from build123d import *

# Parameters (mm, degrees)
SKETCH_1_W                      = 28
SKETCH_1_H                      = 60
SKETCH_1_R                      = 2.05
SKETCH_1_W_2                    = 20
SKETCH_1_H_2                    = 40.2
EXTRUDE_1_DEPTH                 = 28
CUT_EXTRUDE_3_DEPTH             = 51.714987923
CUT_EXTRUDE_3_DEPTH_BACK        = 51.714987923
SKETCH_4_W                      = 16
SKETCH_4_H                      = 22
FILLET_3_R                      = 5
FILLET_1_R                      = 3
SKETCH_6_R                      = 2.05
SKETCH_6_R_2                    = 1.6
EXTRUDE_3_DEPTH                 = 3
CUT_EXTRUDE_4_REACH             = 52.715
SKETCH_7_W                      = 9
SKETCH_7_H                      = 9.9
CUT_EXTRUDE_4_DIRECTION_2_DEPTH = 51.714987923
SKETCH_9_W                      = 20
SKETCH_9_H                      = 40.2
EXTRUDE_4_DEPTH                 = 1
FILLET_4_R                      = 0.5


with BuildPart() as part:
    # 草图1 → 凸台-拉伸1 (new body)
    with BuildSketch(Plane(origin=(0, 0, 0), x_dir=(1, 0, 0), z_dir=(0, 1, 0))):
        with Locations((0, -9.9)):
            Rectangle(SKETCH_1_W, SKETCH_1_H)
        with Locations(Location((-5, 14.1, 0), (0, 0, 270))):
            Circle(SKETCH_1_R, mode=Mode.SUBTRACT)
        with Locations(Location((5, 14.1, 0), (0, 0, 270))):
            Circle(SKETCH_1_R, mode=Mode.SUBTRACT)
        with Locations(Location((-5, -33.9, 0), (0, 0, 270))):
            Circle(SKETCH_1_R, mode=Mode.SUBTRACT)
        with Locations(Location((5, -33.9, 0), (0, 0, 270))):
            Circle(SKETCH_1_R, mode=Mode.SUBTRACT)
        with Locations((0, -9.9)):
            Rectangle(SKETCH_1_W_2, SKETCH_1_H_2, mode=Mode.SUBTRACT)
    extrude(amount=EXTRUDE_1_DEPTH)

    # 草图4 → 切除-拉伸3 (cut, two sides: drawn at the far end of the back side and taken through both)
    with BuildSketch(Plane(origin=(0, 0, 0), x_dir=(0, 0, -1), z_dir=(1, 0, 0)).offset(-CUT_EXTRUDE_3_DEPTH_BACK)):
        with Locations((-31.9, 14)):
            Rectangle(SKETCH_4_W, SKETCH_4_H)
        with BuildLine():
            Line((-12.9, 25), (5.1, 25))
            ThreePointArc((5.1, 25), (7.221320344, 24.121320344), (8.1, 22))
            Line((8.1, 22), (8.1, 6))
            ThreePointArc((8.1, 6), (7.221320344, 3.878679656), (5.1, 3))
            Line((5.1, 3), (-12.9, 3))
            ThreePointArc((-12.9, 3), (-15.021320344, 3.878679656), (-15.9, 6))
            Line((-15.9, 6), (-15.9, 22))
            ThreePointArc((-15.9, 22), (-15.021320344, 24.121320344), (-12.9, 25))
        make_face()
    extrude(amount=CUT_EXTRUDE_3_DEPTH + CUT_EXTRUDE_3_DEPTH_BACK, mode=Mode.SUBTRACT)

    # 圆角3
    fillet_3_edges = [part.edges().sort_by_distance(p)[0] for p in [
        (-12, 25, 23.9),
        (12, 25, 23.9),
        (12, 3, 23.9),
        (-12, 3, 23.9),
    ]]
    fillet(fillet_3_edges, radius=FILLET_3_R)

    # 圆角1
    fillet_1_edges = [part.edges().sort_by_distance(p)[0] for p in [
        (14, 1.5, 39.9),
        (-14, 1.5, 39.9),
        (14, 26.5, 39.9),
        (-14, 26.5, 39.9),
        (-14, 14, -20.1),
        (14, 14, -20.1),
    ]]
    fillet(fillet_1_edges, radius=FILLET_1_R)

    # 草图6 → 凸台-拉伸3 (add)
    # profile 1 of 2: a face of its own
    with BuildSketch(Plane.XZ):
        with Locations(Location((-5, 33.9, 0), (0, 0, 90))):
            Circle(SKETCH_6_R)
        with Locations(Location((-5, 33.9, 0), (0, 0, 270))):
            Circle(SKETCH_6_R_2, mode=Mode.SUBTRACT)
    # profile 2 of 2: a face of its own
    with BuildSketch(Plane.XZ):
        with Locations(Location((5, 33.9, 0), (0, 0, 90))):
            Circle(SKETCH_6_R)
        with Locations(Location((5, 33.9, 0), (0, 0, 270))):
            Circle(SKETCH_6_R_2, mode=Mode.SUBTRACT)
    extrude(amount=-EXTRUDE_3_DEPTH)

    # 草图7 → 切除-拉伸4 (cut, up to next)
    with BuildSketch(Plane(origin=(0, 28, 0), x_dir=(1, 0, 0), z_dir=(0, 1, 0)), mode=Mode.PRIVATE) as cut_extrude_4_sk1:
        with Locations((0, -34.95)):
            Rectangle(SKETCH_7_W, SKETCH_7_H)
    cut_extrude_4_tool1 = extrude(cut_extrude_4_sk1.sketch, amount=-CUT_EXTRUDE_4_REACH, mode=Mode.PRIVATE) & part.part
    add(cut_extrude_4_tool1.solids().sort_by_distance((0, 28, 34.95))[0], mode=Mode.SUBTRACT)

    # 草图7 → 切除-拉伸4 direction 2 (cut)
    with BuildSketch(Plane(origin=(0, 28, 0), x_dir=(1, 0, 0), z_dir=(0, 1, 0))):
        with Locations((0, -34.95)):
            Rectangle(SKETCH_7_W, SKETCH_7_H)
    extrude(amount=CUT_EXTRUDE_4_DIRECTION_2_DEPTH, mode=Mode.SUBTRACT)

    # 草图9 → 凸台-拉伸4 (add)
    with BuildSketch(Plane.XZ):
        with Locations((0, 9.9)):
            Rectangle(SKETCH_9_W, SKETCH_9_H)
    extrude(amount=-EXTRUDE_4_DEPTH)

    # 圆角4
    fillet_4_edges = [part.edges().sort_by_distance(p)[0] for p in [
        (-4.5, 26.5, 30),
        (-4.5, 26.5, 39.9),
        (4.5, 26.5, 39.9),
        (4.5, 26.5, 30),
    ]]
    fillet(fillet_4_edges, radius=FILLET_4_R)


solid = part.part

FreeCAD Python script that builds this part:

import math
import FreeCAD as App
import Part
import Sketcher

V = App.Vector
Q = App.Units.Quantity


def edges_at(feature, points):
    """Names of the edges that pass closest to the given points."""
    edges = feature.Shape.Edges
    near = lambda p: min(range(len(edges)), key=lambda i: edges[i].distToShape(Part.Vertex(*p))[0])
    return sorted({f"Edge{near(p) + 1}" for p in points})


def add_polygon(sketch, points):
    """Adds a closed chain of lines whose ends are joined by coincident constraints."""
    first, n = sketch.GeometryCount, len(points)
    for a, b in zip(points, points[1:] + points[:1]):
        sketch.addGeometry(Part.LineSegment(App.Vector(*a, 0), App.Vector(*b, 0)), False)
    for i in range(n):
        sketch.addConstraint(Sketcher.Constraint("Coincident", first + i, 2, first + (i + 1) % n, 1))

doc = App.newDocument("Part")
body = doc.addObject("PartDesign::Body", "Body")

# Sketch on XZ plane
sketch1 = body.newObject("Sketcher::SketchObject", "Sketch")
sketch1.AttachmentSupport = (doc.getObject("XZ_Plane"), [""])
sketch1.MapMode = "FlatFace"
add_polygon(sketch1, [(-14, -20.1), (-14, 39.9), (14, 39.9), (14, -20.1)])  # lines 0-3
sketch1.addGeometry(Part.Circle(V(-5, 33.9, 0), V(0, 0, 1), 2), False)  # 4
sketch1.addGeometry(Part.Circle(V(5, 33.9, 0), V(0, 0, 1), 2), False)  # 5
sketch1.addGeometry(Part.Circle(V(-5, -14.1, 0), V(0, 0, 1), 2), False)  # 6
add_polygon(sketch1, [(10, 30), (-10, 30), (-10, -10.2), (10, -10.2)])  # lines 7-10
sketch1.addGeometry(Part.Circle(V(5, -14.1, 0), V(0, 0, 1), 2), False)  # 11
sketch1.addConstraint(Sketcher.Constraint("Vertical", 0))
sketch1.addConstraint(Sketcher.Constraint("Horizontal", 1))
sketch1.addConstraint(Sketcher.Constraint("Vertical", 2))
sketch1.addConstraint(Sketcher.Constraint("Horizontal", 3))
sketch1.addConstraint(Sketcher.Constraint("Horizontal", 7))
sketch1.addConstraint(Sketcher.Constraint("Vertical", 8))
sketch1.addConstraint(Sketcher.Constraint("Horizontal", 9))
sketch1.addConstraint(Sketcher.Constraint("Vertical", 10))
sketch1.addConstraint(Sketcher.Constraint("Equal", 4, 5))
sketch1.addConstraint(Sketcher.Constraint("Equal", 5, 6))
sketch1.addConstraint(Sketcher.Constraint("Equal", 6, 11))
sketch1.addConstraint(Sketcher.Constraint("Symmetric", 4, 3, 5, 3, -2))
sketch1.addConstraint(Sketcher.Constraint("Symmetric", 6, 3, 11, 3, -2))
sketch1.addConstraint(Sketcher.Constraint("Vertical", 4, 3, 6, 3))
sketch1.addConstraint(Sketcher.Constraint("Diameter", 4, Q("4.1 mm")))
sketch1.addConstraint(Sketcher.Constraint("DistanceX", 1, 1, 1, 2, Q("28 mm")))
sketch1.addConstraint(Sketcher.Constraint("DistanceX", 7, 2, 7, 1, Q("20 mm")))
sketch1.addConstraint(Sketcher.Constraint("DistanceY", 0, 1, 0, 2, Q("60 mm")))
sketch1.addConstraint(Sketcher.Constraint("DistanceY", 8, 2, 8, 1, Q("40.2 mm")))
sketch1.addConstraint(Sketcher.Constraint("DistanceX", 4, 3, -1, 1, Q("5 mm")))
sketch1.addConstraint(Sketcher.Constraint("DistanceX", 0, 2, -1, 1, Q("14 mm")))
sketch1.addConstraint(Sketcher.Constraint("DistanceX", 7, 2, -1, 1, Q("10 mm")))
sketch1.addConstraint(Sketcher.Constraint("DistanceY", -1, 1, 7, 2, Q("30 mm")))
sketch1.addConstraint(Sketcher.Constraint("DistanceY", 6, 3, 4, 3, Q("48 mm")))
sketch1.addConstraint(Sketcher.Constraint("DistanceY", 4, 3, 0, 2, Q("6 mm")))
sketch1.addConstraint(Sketcher.Constraint("DistanceY", -1, 1, 4, 3, Q("33.9 mm")))
pad1 = body.newObject("PartDesign::Pad", "Pad")
pad1.Profile = sketch1
pad1.Length = 28
pad1.Reversed = True

# Sketch on YZ plane
sketch2 = body.newObject("Sketcher::SketchObject", "Sketch001")
sketch2.AttachmentSupport = (doc.getObject("YZ_Plane"), [""])
sketch2.MapMode = "FlatFace"
add_polygon(sketch2, [(25, 39.9), (3, 39.9), (3, 23.9), (25, 23.9)])  # lines 0-3
sketch2.addGeometry(Part.LineSegment(V(25, -5.1, 0), V(25, 12.9, 0)), False)  # 4
sketch2.addGeometry(Part.ArcOfCircle(Part.Circle(V(22, 12.9, 0), V(0, 0, 1), 3), math.radians(0), math.radians(90)), False)  # 5
sketch2.addGeometry(Part.LineSegment(V(22, 15.9, 0), V(6, 15.9, 0)), False)  # 6
sketch2.addGeometry(Part.ArcOfCircle(Part.Circle(V(6, 12.9, 0), V(0, 0, 1), 3), math.radians(90), math.radians(180)), False)  # 7
sketch2.addGeometry(Part.LineSegment(V(3, 12.9, 0), V(3, -5.1, 0)), False)  # 8
sketch2.addGeometry(Part.ArcOfCircle(Part.Circle(V(6, -5.1, 0), V(0, 0, 1), 3), math.radians(180), math.radians(270)), False)  # 9
sketch2.addGeometry(Part.LineSegment(V(6, -8.1, 0), V(22, -8.1, 0)), False)  # 10
sketch2.addGeometry(Part.ArcOfCircle(Part.Circle(V(22, -5.1, 0), V(0, 0, 1), 3), math.radians(-90), math.radians(0)), False)  # 11
sketch2.addConstraint(Sketcher.Constraint("Tangent", 4, 2, 5, 1))
sketch2.addConstraint(Sketcher.Constraint("Tangent", 5, 2, 6, 1))
sketch2.addConstraint(Sketcher.Constraint("Tangent", 6, 2, 7, 1))
sketch2.addConstraint(Sketcher.Constraint("Tangent", 7, 2, 8, 1))
sketch2.addConstraint(Sketcher.Constraint("Tangent", 8, 2, 9, 1))
sketch2.addConstraint(Sketcher.Constraint("Tangent", 9, 2, 10, 1))
sketch2.addConstraint(Sketcher.Constraint("Tangent", 10, 2, 11, 1))
sketch2.addConstraint(Sketcher.Constraint("Tangent", 11, 2, 4, 1))
sketch2.addConstraint(Sketcher.Constraint("Horizontal", 0))
sketch2.addConstraint(Sketcher.Constraint("Vertical", 1))
sketch2.addConstraint(Sketcher.Constraint("Horizontal", 2))
sketch2.addConstraint(Sketcher.Constraint("Vertical", 3))
sketch2.addConstraint(Sketcher.Constraint("Vertical", 4))
sketch2.addConstraint(Sketcher.Constraint("Horizontal", 6))
sketch2.addConstraint(Sketcher.Constraint("Vertical", 8))
sketch2.addConstraint(Sketcher.Constraint("Horizontal", 10))
sketch2.addConstraint(Sketcher.Constraint("Equal", 5, 7))
sketch2.addConstraint(Sketcher.Constraint("Equal", 7, 9))
sketch2.addConstraint(Sketcher.Constraint("Equal", 9, 11))
sketch2.addConstraint(Sketcher.Constraint("Vertical", 3, 2, 4, 2))
sketch2.addConstraint(Sketcher.Constraint("Vertical", 1, 2, 7, 2))
sketch2.addConstraint(Sketcher.Constraint("Equal", 10, 1))
sketch2.addConstraint(Sketcher.Constraint("Radius", 5, Q("3 mm")))
sketch2.addConstraint(Sketcher.Constraint("DistanceX", 0, 2, 0, 1, Q("22 mm")))
sketch2.addConstraint(Sketcher.Constraint("DistanceY", 4, 1, 4, 2, Q("18 mm")))
sketch2.addConstraint(Sketcher.Constraint("DistanceX", -1, 1, 5, 3, Q("22 mm")))
sketch2.addConstraint(Sketcher.Constraint("DistanceY", 7, 3, 0, 2, Q("27 mm")))
sketch2.addConstraint(Sketcher.Constraint("DistanceY", -1, 1, 5, 3, Q("12.9 mm")))
pocket1 = body.newObject("PartDesign::Pocket", "Pocket")
pocket1.Profile = sketch2
pocket1.Type = "ThroughAll"
pocket1.Midplane = True
doc.recompute()

fillet = body.newObject("PartDesign::Fillet", "Fillet")
fillet.Base = (pocket1, edges_at(pocket1, [
    (-12, 25, 23.9),
    (12, 25, 23.9),
    (12, 3, 23.9),
    (-12, 3, 23.9),
]))
fillet.Radius = 5
doc.recompute()

fillet2 = body.newObject("PartDesign::Fillet", "Fillet001")
fillet2.Base = (fillet, edges_at(fillet, [
    (14, 1.5, 39.9),
    (-14, 1.5, 39.9),
    (14, 26.5, 39.9),
    (-14, 26.5, 39.9),
    (-14, 14, -20.1),
    (14, 14, -20.1),
]))
fillet2.Radius = 3

# Sketch on XZ plane
sketch3 = body.newObject("Sketcher::SketchObject", "Sketch002")
sketch3.AttachmentSupport = (doc.getObject("XZ_Plane"), [""])
sketch3.MapMode = "FlatFace"
sketch3.addGeometry(Part.Circle(V(-5, 33.9, 0), V(0, 0, 1), 2), False)
sketch3.addGeometry(Part.Circle(V(-5, 33.9, 0), V(0, 0, 1), 1.6), False)
sketch3.addGeometry(Part.Circle(V(5, 33.9, 0), V(0, 0, 1), 2), False)
sketch3.addGeometry(Part.Circle(V(5, 33.9, 0), V(0, 0, 1), 1.6), False)
sketch3.addConstraint(Sketcher.Constraint("Coincident", 1, 3, 0, 3))
sketch3.addConstraint(Sketcher.Constraint("Coincident", 3, 3, 2, 3))
sketch3.addConstraint(Sketcher.Constraint("Equal", 0, 2))
sketch3.addConstraint(Sketcher.Constraint("Equal", 1, 3))
sketch3.addConstraint(Sketcher.Constraint("Symmetric", 0, 3, 2, 3, -2))
sketch3.addConstraint(Sketcher.Constraint("Diameter", 0, Q("4.1 mm")))
sketch3.addConstraint(Sketcher.Constraint("Diameter", 1, Q("3.2 mm")))
sketch3.addConstraint(Sketcher.Constraint("DistanceX", 0, 3, -1, 1, Q("5 mm")))
sketch3.addConstraint(Sketcher.Constraint("DistanceY", -1, 1, 0, 3, Q("33.9 mm")))
pad2 = body.newObject("PartDesign::Pad", "Pad001")
pad2.Profile = sketch3
pad2.Length = 3
pad2.Reversed = True

# Sketch on XZ plane
sketch4 = body.newObject("Sketcher::SketchObject", "Sketch003")
sketch4.AttachmentSupport = (doc.getObject("XZ_Plane"), [""])
sketch4.MapMode = "FlatFace"
sketch4.AttachmentOffset = App.Placement(V(0, 0, -28), App.Rotation())
add_polygon(sketch4, [(-4, 30), (-4, 40), (4, 40), (4, 30)])  # lines 0-3
sketch4.addConstraint(Sketcher.Constraint("Vertical", 0))
sketch4.addConstraint(Sketcher.Constraint("Horizontal", 1))
sketch4.addConstraint(Sketcher.Constraint("Vertical", 2))
sketch4.addConstraint(Sketcher.Constraint("Horizontal", 3))
sketch4.addConstraint(Sketcher.Constraint("DistanceX", 1, 1, 1, 2, Q("9 mm")))
sketch4.addConstraint(Sketcher.Constraint("DistanceY", 0, 1, 0, 2, Q("9.9 mm")))
sketch4.addConstraint(Sketcher.Constraint("DistanceY", -1, 1, 2, 2, Q("30 mm")))
sketch4.addConstraint(Sketcher.Constraint("DistanceX", 0, 2, -1, 1, Q("4.5 mm")))
pocket2 = body.newObject("PartDesign::Pocket", "Pocket001")
pocket2.Profile = sketch4
pocket2.Type = "UpToFirst"
pocket2.Reversed = True

# Sketch on XZ plane
sketch5 = body.newObject("Sketcher::SketchObject", "Sketch004")
sketch5.AttachmentSupport = (doc.getObject("XZ_Plane"), [""])
sketch5.MapMode = "FlatFace"
sketch5.AttachmentOffset = App.Placement(V(0, 0, -28), App.Rotation())
add_polygon(sketch5, [(-4, 30), (-4, 40), (4, 40), (4, 30)])  # lines 0-3
sketch5.addConstraint(Sketcher.Constraint("Vertical", 0))
sketch5.addConstraint(Sketcher.Constraint("Horizontal", 1))
sketch5.addConstraint(Sketcher.Constraint("Vertical", 2))
sketch5.addConstraint(Sketcher.Constraint("Horizontal", 3))
sketch5.addConstraint(Sketcher.Constraint("DistanceX", 1, 1, 1, 2, Q("9 mm")))
sketch5.addConstraint(Sketcher.Constraint("DistanceY", 0, 1, 0, 2, Q("9.9 mm")))
sketch5.addConstraint(Sketcher.Constraint("DistanceY", -1, 1, 2, 2, Q("30 mm")))
sketch5.addConstraint(Sketcher.Constraint("DistanceX", 0, 2, -1, 1, Q("4.5 mm")))
pocket3 = body.newObject("PartDesign::Pocket", "Pocket002")
pocket3.Profile = sketch5
pocket3.Length = 51.714988

# Sketch on XZ plane
sketch6 = body.newObject("Sketcher::SketchObject", "Sketch005")
sketch6.AttachmentSupport = (doc.getObject("XZ_Plane"), [""])
sketch6.MapMode = "FlatFace"
add_polygon(sketch6, [(-10, 30), (-10, -10), (10, -10), (10, 30)])  # lines 0-3
sketch6.addConstraint(Sketcher.Constraint("Vertical", 0))
sketch6.addConstraint(Sketcher.Constraint("Horizontal", 1))
sketch6.addConstraint(Sketcher.Constraint("Vertical", 2))
sketch6.addConstraint(Sketcher.Constraint("Horizontal", 3))
sketch6.addConstraint(Sketcher.Constraint("DistanceX", 1, 1, 1, 2, Q("20 mm")))
sketch6.addConstraint(Sketcher.Constraint("DistanceY", 0, 2, 0, 1, Q("40.2 mm")))
sketch6.addConstraint(Sketcher.Constraint("DistanceX", 0, 2, -1, 1, Q("10 mm")))
sketch6.addConstraint(Sketcher.Constraint("DistanceY", -1, 1, 2, 2, Q("30 mm")))
pad3 = body.newObject("PartDesign::Pad", "Pad002")
pad3.Profile = sketch6
pad3.Length = 1
pad3.Reversed = True
doc.recompute()

fillet3 = body.newObject("PartDesign::Fillet", "Fillet002")
fillet3.Base = (pad3, edges_at(pad3, [
    (-4.5, 26.5, 30),
    (-4.5, 26.5, 39.9),
    (4.5, 26.5, 39.9),
    (4.5, 26.5, 30),
]))
fillet3.Radius = 0.5

doc.recompute()
